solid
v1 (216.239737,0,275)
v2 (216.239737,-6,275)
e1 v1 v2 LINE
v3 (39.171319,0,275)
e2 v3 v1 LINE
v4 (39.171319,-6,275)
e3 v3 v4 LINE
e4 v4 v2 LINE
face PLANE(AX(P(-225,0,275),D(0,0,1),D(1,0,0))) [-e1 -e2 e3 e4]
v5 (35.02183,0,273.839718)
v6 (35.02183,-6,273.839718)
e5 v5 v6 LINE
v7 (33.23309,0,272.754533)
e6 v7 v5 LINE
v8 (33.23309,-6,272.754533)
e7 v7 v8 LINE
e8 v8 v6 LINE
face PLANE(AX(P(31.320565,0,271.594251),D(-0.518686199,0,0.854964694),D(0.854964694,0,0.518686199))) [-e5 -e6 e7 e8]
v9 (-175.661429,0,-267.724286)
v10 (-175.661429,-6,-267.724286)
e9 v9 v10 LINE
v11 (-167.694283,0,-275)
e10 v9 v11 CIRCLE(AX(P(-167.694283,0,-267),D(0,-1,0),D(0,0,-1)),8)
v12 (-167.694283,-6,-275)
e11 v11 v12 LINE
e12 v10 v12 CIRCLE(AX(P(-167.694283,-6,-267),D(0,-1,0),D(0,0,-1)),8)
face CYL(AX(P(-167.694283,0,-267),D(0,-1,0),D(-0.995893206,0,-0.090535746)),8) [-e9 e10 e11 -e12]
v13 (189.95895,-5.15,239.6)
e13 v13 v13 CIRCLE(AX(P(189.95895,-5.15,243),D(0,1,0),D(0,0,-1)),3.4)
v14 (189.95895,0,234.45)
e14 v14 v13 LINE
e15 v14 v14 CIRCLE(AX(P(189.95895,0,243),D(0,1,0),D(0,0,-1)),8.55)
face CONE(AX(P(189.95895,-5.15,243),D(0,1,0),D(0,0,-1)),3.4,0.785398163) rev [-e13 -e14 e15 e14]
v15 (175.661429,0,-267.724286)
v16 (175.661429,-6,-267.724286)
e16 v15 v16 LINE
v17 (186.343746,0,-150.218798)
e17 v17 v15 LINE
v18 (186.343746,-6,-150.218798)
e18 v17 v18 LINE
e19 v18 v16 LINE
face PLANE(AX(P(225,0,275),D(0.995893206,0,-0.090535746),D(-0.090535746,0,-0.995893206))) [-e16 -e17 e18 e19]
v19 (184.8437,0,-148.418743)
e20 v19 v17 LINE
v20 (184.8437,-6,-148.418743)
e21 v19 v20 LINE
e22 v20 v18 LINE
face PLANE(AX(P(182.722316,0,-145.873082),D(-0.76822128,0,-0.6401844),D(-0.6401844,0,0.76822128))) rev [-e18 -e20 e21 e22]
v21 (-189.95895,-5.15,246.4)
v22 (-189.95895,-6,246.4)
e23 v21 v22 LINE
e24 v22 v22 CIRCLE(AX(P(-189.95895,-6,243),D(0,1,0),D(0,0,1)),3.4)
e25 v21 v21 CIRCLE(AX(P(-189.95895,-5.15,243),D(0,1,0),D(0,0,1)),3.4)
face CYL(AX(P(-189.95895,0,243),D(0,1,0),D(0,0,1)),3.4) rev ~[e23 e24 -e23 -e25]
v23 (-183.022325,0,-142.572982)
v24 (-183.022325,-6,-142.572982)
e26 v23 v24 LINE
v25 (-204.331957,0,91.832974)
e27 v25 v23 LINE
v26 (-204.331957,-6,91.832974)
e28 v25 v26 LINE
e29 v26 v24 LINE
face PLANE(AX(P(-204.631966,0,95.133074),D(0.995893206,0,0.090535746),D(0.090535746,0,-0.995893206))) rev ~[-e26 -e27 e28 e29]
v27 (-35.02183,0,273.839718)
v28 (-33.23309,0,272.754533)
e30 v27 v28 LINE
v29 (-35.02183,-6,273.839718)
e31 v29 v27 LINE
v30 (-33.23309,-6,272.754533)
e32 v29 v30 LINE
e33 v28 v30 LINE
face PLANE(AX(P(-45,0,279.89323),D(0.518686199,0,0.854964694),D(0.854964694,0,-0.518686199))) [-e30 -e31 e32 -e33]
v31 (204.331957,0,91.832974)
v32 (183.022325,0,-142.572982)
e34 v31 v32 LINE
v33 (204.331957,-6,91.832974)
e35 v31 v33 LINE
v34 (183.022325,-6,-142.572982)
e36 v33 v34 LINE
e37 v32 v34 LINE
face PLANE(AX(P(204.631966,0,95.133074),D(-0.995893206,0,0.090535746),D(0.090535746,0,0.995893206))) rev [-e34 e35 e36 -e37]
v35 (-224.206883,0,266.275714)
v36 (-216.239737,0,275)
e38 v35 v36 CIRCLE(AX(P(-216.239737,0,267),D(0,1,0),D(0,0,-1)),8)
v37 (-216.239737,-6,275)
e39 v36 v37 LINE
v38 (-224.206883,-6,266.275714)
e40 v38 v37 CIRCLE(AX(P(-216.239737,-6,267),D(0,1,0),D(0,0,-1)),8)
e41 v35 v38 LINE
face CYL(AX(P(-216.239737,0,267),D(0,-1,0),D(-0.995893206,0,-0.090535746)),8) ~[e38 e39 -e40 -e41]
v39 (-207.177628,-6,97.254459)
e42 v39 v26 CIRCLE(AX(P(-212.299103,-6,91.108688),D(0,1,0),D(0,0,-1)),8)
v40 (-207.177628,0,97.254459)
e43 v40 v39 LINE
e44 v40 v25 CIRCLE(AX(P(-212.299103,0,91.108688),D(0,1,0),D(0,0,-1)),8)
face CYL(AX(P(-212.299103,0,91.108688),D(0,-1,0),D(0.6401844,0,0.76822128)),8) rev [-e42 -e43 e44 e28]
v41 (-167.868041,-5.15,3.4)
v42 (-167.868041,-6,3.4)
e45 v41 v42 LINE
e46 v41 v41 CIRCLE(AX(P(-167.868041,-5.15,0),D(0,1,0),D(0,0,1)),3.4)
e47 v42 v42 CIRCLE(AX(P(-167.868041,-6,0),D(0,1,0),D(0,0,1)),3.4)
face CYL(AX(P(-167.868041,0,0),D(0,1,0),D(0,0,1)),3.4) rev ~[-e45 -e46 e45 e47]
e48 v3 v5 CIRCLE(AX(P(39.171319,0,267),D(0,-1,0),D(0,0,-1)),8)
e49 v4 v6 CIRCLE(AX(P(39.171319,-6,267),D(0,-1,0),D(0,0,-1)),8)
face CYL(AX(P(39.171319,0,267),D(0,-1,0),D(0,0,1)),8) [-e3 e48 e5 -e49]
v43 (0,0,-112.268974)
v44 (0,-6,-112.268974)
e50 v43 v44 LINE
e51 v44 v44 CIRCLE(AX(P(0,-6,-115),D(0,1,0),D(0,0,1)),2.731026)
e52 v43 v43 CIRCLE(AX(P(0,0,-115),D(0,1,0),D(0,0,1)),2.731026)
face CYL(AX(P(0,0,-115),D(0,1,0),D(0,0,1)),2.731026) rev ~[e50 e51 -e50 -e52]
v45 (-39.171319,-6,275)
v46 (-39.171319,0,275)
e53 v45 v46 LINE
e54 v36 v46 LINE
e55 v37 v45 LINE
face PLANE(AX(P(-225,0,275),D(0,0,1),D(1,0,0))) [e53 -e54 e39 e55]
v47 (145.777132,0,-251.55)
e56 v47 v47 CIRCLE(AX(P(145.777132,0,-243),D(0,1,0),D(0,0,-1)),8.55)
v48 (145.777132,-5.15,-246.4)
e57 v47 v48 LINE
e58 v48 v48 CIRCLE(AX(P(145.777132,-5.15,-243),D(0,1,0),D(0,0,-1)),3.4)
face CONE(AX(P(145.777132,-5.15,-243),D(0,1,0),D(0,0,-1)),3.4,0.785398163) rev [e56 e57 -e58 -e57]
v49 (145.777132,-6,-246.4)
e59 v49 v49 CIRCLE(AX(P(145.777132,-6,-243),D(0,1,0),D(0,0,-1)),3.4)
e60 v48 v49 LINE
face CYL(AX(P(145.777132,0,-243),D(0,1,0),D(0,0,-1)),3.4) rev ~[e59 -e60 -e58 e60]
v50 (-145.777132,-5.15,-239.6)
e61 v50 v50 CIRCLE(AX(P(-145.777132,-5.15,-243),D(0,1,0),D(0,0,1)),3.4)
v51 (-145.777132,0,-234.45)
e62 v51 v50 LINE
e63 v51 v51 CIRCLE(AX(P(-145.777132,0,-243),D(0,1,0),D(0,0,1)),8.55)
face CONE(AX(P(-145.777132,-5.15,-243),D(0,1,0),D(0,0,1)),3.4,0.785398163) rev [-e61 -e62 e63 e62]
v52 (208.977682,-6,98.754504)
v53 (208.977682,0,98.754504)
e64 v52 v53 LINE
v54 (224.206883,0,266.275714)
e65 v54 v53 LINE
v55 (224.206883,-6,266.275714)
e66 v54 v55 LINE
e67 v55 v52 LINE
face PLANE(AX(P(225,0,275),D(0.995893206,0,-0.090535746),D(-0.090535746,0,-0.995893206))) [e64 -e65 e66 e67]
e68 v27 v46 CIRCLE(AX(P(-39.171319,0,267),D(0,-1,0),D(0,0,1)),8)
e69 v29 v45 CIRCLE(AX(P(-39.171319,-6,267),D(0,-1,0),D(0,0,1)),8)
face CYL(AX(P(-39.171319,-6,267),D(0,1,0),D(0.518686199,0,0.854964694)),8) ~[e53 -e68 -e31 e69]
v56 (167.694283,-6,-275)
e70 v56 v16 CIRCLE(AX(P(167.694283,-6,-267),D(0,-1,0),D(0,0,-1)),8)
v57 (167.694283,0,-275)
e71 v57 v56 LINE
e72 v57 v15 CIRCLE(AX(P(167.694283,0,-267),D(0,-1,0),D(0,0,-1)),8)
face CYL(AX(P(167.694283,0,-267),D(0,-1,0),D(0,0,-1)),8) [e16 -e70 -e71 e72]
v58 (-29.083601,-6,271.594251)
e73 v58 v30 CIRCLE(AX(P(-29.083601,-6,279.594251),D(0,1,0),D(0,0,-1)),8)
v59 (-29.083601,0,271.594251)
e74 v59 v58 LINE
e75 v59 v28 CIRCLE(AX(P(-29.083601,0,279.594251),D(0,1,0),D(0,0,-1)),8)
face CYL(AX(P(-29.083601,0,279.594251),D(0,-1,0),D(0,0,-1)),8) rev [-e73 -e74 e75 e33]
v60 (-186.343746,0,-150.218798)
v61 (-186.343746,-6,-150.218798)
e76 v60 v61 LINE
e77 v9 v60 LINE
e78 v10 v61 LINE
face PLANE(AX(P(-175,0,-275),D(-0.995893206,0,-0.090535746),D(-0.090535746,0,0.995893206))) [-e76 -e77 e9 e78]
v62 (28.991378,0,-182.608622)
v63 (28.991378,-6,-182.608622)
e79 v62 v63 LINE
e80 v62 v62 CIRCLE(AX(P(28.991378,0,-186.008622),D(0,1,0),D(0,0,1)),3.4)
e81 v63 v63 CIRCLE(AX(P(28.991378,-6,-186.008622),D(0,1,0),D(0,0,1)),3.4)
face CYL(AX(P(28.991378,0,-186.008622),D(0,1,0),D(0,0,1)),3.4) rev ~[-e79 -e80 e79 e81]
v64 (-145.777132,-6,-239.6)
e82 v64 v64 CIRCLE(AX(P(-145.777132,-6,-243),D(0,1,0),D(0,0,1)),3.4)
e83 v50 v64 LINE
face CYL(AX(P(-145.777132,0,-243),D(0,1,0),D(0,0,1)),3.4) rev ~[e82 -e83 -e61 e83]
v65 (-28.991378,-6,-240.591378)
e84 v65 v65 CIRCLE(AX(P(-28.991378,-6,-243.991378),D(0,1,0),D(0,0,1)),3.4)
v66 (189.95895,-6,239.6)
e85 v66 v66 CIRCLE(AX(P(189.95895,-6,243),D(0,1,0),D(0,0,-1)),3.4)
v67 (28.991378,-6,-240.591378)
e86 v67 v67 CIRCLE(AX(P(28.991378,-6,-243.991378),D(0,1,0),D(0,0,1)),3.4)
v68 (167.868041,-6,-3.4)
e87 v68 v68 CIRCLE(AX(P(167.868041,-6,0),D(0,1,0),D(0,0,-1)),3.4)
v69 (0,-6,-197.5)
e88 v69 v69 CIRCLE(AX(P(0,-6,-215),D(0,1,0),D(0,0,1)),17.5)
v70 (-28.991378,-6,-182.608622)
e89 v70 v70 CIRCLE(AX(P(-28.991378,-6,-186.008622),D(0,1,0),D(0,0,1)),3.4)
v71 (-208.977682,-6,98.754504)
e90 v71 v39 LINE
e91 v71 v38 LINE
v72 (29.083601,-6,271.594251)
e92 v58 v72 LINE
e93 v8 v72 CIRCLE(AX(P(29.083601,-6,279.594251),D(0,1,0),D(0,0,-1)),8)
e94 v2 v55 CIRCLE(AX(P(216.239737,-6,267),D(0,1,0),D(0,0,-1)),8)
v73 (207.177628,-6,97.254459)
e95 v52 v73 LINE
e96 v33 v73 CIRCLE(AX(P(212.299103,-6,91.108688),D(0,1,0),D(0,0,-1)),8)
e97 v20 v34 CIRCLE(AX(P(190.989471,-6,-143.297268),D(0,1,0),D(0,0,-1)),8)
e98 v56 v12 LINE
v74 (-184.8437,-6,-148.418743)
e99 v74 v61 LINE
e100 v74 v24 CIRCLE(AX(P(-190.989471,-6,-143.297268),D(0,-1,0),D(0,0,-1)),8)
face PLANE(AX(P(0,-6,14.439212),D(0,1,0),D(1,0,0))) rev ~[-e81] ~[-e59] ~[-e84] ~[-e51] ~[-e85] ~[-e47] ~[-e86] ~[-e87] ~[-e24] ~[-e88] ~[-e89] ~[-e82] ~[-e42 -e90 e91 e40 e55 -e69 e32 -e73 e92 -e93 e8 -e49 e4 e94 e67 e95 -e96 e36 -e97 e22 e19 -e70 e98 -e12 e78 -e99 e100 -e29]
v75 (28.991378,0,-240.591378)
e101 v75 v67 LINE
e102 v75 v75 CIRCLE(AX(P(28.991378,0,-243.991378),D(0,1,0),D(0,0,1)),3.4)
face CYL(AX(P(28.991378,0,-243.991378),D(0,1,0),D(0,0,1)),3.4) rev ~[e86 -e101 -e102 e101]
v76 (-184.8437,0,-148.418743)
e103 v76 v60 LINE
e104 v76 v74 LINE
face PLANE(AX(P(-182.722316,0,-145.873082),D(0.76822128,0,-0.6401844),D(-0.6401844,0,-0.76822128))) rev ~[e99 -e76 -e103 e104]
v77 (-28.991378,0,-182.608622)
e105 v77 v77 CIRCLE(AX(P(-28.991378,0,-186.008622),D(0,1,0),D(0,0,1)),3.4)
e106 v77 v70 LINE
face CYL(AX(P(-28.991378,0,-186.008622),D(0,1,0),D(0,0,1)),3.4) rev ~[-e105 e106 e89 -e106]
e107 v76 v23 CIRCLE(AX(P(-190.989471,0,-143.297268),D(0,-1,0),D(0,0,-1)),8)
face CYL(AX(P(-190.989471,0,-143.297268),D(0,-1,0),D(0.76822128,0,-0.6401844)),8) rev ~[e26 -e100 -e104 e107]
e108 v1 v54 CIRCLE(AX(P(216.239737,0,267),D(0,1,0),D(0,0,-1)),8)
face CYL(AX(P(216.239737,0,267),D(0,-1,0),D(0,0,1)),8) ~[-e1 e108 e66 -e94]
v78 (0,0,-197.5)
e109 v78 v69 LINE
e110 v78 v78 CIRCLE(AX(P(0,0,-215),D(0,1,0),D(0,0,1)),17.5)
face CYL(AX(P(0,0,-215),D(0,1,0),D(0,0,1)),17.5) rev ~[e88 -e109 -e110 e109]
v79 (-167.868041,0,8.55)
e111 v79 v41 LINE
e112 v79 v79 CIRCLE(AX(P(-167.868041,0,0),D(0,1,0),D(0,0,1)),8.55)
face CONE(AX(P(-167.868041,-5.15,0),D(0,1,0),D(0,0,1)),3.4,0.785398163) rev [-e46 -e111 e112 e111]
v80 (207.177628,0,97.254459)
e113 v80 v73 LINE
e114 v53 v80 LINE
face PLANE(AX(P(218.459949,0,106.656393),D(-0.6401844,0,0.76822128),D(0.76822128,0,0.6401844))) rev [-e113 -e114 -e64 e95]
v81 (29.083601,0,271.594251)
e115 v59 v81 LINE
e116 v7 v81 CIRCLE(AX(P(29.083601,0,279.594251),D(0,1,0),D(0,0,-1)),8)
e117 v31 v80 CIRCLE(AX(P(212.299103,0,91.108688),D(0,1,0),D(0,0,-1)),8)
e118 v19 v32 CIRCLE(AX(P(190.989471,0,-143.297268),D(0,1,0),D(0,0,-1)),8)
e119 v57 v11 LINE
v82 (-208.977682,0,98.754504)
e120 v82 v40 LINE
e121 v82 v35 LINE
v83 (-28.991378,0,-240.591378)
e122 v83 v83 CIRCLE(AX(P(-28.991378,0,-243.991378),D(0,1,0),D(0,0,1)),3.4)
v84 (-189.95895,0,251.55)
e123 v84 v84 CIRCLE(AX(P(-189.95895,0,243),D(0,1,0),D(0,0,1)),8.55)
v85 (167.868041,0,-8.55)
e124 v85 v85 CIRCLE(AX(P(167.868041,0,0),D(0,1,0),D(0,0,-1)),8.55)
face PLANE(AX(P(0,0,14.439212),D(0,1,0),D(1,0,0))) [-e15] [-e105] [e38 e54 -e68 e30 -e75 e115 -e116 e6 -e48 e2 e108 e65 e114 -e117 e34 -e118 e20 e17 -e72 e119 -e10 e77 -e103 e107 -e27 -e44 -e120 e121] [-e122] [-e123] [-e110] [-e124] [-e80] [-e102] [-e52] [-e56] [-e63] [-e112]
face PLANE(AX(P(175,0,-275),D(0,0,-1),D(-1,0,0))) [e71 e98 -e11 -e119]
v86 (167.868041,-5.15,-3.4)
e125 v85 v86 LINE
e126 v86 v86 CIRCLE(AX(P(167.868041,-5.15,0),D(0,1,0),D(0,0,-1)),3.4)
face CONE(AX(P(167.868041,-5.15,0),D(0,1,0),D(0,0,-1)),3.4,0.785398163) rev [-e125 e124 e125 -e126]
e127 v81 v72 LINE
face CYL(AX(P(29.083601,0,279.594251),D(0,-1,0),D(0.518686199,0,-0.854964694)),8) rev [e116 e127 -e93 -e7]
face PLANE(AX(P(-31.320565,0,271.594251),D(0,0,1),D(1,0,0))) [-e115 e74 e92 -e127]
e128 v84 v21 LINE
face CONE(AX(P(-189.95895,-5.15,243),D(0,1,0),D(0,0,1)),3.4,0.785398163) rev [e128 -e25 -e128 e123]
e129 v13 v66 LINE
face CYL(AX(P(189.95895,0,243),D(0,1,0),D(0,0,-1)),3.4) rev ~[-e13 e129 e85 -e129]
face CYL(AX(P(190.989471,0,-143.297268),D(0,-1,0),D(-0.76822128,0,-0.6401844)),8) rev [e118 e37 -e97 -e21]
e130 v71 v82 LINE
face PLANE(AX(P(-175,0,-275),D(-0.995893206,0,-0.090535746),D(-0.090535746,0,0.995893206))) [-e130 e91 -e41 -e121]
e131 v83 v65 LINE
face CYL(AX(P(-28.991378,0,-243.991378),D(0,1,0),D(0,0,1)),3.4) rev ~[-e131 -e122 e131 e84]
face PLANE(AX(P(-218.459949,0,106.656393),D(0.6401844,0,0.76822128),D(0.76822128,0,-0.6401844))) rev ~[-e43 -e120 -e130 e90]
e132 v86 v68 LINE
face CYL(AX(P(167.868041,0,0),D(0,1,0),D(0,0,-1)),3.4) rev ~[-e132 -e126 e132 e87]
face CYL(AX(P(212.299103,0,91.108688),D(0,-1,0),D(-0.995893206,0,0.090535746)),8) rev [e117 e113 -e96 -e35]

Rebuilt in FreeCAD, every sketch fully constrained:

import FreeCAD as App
import Part
import Sketcher


def edges_at(feature, points):
    """Names of the edges that pass closest to the given points."""
    edges = feature.Shape.Edges
    near = lambda p: min(range(len(edges)), key=lambda i: edges[i].distToShape(Part.Vertex(*p))[0])
    return sorted({f"Edge{near(p) + 1}" for p in points})


def add_polygon(sketch, points):
    """Adds a closed chain of lines whose ends are joined by coincident constraints."""
    first, n = sketch.GeometryCount, len(points)
    for a, b in zip(points, points[1:] + points[:1]):
        sketch.addGeometry(Part.LineSegment(App.Vector(*a, 0), App.Vector(*b, 0)), False)
    for i in range(n):
        sketch.addConstraint(Sketcher.Constraint("Coincident", first + i, 2, first + (i + 1) % n, 1))

doc = App.newDocument("Part")
params = doc.addObject("Spreadsheet::Sheet", "Params")
for row, (alias, value) in enumerate([
    ("sketch1_diameter", "35 mm"),
    ("sketch1_diameter2", "6.8 mm"),
    ("sketch1_width", "450 mm"),
    ("sketch1_width2", "350 mm"),
    ("pad1_length", "6 mm"),
    ("fillet_radius", "8 mm"),
    ("sketch2_diameter", "6.8 mm"),
    ("pocket1_length", "20 mm"),
    ("sketch3_length", "242 mm"),
    ("sketch3_length2", "18 mm"),
    ("pocket2_length", "10 mm"),
    ("sketch4_width", "90 mm"),
    ("sketch4_length", "16 mm"),
    ("pocket3_length", "10 mm"),
    ("fillet2_radius", "8 mm"),
    ("chamfer_size", "5.15 mm"),
], start=1):
    params.set(f"A{row}", alias)
    params.set(f"B{row}", "=" + value)
    params.setAlias(f"B{row}", alias)

body = doc.addObject("PartDesign::Body", "Body")

sketch1 = doc.addObject("Sketcher::SketchObject", "Sketch")
body.addObject(sketch1)
sketch1.AttachmentSupport = (doc.XZ_Plane, [""])
sketch1.MapMode = "FlatFace"
add_polygon(sketch1, [(-175, -275), (-225, 275), (225, 275), (175, -275)])
sketch1.addGeometry(Part.Circle(App.Vector(-189.95895, 243, 0), App.Vector(0, 0, 1), 3.4), False)
sketch1.addGeometry(Part.Circle(App.Vector(189.95895, 243, 0), App.Vector(0, 0, 1), 3.4), False)
sketch1.addGeometry(Part.Circle(App.Vector(-167.868041, 0, 0), App.Vector(0, 0, 1), 3.4), False)
sketch1.addGeometry(Part.Circle(App.Vector(-145.777132, -243, 0), App.Vector(0, 0, 1), 3.4), False)
sketch1.addGeometry(Part.Circle(App.Vector(0, -115, 0), App.Vector(0, 0, 1), 2.731026), False)
sketch1.addGeometry(Part.Circle(App.Vector(167.868041, 0, 0), App.Vector(0, 0, 1), 3.4), False)
sketch1.addGeometry(Part.Circle(App.Vector(0, -215, 0), App.Vector(0, 0, 1), 17.5), False)
sketch1.addGeometry(Part.Circle(App.Vector(145.777132, -243, 0), App.Vector(0, 0, 1), 3.4), False)
sketch1.addConstraint(Sketcher.Constraint("Horizontal", 1))
sketch1.addConstraint(Sketcher.Constraint("Horizontal", 3))
sketch1.addConstraint(Sketcher.Constraint("Equal", 4, 5))
sketch1.addConstraint(Sketcher.Constraint("Equal", 5, 6))
sketch1.addConstraint(Sketcher.Constraint("Equal", 6, 7))
sketch1.addConstraint(Sketcher.Constraint("Equal", 7, 9))
sketch1.addConstraint(Sketcher.Constraint("Equal", 9, 11))
sketch1.addConstraint(Sketcher.Constraint("Symmetric", 6, 3, 9, 3, -1, 1))
sketch1.addConstraint(Sketcher.Constraint("Symmetric", 4, 3, 5, 3, -2))
sketch1.addConstraint(Sketcher.Constraint("Symmetric", 7, 3, 11, 3, -2))
sketch1.addConstraint(Sketcher.Constraint("PointOnObject", 6, 3, -1))
sketch1.addConstraint(Sketcher.Constraint("PointOnObject", 8, 3, -2))
sketch1.addConstraint(Sketcher.Constraint("PointOnObject", 10, 3, -2))
sketch1.addConstraint(Sketcher.Constraint("Equal", 0, 2))
sketch1.addConstraint(Sketcher.Constraint("Diameter", 10, 35.0))
sketch1.addConstraint(Sketcher.Constraint("Diameter", 4, 6.8))
sketch1.addConstraint(Sketcher.Constraint("DistanceX", 1, 1, 1, 2, 450.0))
sketch1.addConstraint(Sketcher.Constraint("DistanceX", 3, 2, 3, 1, 350.0))
sketch1.addConstraint(Sketcher.Constraint("DistanceY", -1, 1, 4, 3, 243.0))
sketch1.addConstraint(Sketcher.Constraint("DistanceY", 7, 3, -1, 1, 243.0))
sketch1.addConstraint(Sketcher.Constraint("DistanceY", 8, 3, -1, 1, 115.0))
sketch1.addConstraint(Sketcher.Constraint("DistanceY", 10, 3, -1, 1, 215.0))
sketch1.addConstraint(Sketcher.Constraint("DistanceX", 0, 2, -1, 1, 225.0))
sketch1.addConstraint(Sketcher.Constraint("DistanceY", -1, 1, 0, 2, 275.0))
sketch1.addConstraint(Sketcher.Constraint("DistanceY", 2, 2, -1, 1, 275.0))
sketch1.addConstraint(Sketcher.Constraint("Diameter", 8, 5.462053))
sketch1.addConstraint(Sketcher.Constraint("DistanceX", 4, 3, 5, 3, 379.9179))
sketch1.addConstraint(Sketcher.Constraint("DistanceX", 6, 3, -1, 1, 167.868041))
sketch1.addConstraint(Sketcher.Constraint("DistanceX", 7, 3, -1, 1, 145.777132))
sketch1.setExpression("Constraints[18]", "Params.sketch1_diameter")
sketch1.setExpression("Constraints[19]", "Params.sketch1_diameter2")
sketch1.setExpression("Constraints[20]", "Params.sketch1_width")
sketch1.setExpression("Constraints[21]", "Params.sketch1_width2")
pad1 = doc.addObject("PartDesign::Pad", "Pad")
body.addObject(pad1)
pad1.Profile = sketch1
pad1.setExpression("Length", "Params.pad1_length")
doc.recompute()

fillet = doc.addObject("PartDesign::Fillet", "Fillet")
body.addObject(fillet)
fillet.Base = (pad1, edges_at(pad1, [
    (175, -3, -275),
    (225, -3, 275),
    (-225, -3, 275),
    (-175, -3, -275),
]))
fillet.setExpression("Radius", "Params.fillet_radius")

sketch2 = doc.addObject("Sketcher::SketchObject", "Sketch001")
body.addObject(sketch2)
sketch2.AttachmentSupport = (doc.XZ_Plane, [""])
sketch2.MapMode = "FlatFace"
sketch2.addGeometry(Part.Circle(App.Vector(28.991378, -186.008622, 0), App.Vector(0, 0, 1), 3.4), False)
sketch2.addGeometry(Part.Circle(App.Vector(-28.991378, -186.008622, 0), App.Vector(0, 0, 1), 3.4), False)
sketch2.addGeometry(Part.Circle(App.Vector(-28.991378, -243.991378, 0), App.Vector(0, 0, 1), 3.4), False)
sketch2.addGeometry(Part.Circle(App.Vector(28.991378, -243.991378, 0), App.Vector(0, 0, 1), 3.4), False)
sketch2.addConstraint(Sketcher.Constraint("Equal", 0, 1))
sketch2.addConstraint(Sketcher.Constraint("Equal", 1, 2))
sketch2.addConstraint(Sketcher.Constraint("Equal", 2, 3))
sketch2.addConstraint(Sketcher.Constraint("Symmetric", 0, 3, 1, 3, -2))
sketch2.addConstraint(Sketcher.Constraint("Symmetric", 2, 3, 3, 3, -2))
sketch2.addConstraint(Sketcher.Constraint("Vertical", 1, 3, 2, 3))
sketch2.addConstraint(Sketcher.Constraint("Diameter", 0, 6.8))
sketch2.addConstraint(Sketcher.Constraint("DistanceX", -1, 1, 0, 3, 28.991378))
sketch2.addConstraint(Sketcher.Constraint("DistanceY", 0, 3, -1, 1, 186.008622))
sketch2.addConstraint(Sketcher.Constraint("DistanceY", 2, 3, -1, 1, 243.991378))
sketch2.setExpression("Constraints[6]", "Params.sketch2_diameter")
pocket1 = doc.addObject("PartDesign::Pocket", "Pocket")
body.addObject(pocket1)
pocket1.Profile = sketch2
pocket1.setExpression("Length", "Params.pocket1_length")
pocket1.Reversed = True

sketch3 = doc.addObject("Sketcher::SketchObject", "Sketch002")
body.addObject(sketch3)
sketch3.AttachmentSupport = (doc.XZ_Plane, [""])
sketch3.MapMode = "FlatFace"
add_polygon(sketch3, [(-204.631966, 95.133074), (-182.722316, -145.873082), (-194.245635, -159.701065), (-218.459949, 106.656393)])
sketch3.addConstraint(Sketcher.Constraint("Parallel", 0, 2))
sketch3.addConstraint(Sketcher.Constraint("Perpendicular", 1, 3))
sketch3.addConstraint(Sketcher.Constraint("Equal", 1, 3))
sketch3.addConstraint(Sketcher.Constraint("Distance", 0, 242.0))
sketch3.addConstraint(Sketcher.Constraint("Distance", 1, 18.0))
sketch3.addConstraint(Sketcher.Constraint("DistanceY", 0, 2, -1, 1, 145.873082))
sketch3.addConstraint(Sketcher.Constraint("DistanceX", 2, 2, -1, 1, 218.459949))
sketch3.addConstraint(Sketcher.Constraint("DistanceX", 1, 2, 0, 2, 11.523319))
sketch3.setExpression("Constraints[7]", "Params.sketch3_length")
sketch3.setExpression("Constraints[8]", "Params.sketch3_length2")
pocket2 = doc.addObject("PartDesign::Pocket", "Pocket001")
body.addObject(pocket2)
pocket2.Profile = sketch3
pocket2.setExpression("Length", "Params.pocket2_length")
pocket2.Reversed = True

sketch4 = doc.addObject("Sketcher::SketchObject", "Sketch003")
body.addObject(sketch4)
sketch4.AttachmentSupport = (doc.XZ_Plane, [""])
sketch4.MapMode = "FlatFace"
add_polygon(sketch4, [(31.320565, 271.594251), (-31.320565, 271.594251), (-45, 279.89323), (45, 279.89323)])
sketch4.addConstraint(Sketcher.Constraint("Horizontal", 0))
sketch4.addConstraint(Sketcher.Constraint("Horizontal", 2))
sketch4.addConstraint(Sketcher.Constraint("Equal", 1, 3))
sketch4.addConstraint(Sketcher.Constraint("DistanceX", 2, 1, 2, 2, 90.0))
sketch4.addConstraint(Sketcher.Constraint("Distance", 1, 16.0))
sketch4.addConstraint(Sketcher.Constraint("DistanceX", 1, 2, -1, 1, 45.0))
sketch4.addConstraint(Sketcher.Constraint("DistanceX", 0, 2, 0, 1, 62.64113))
sketch4.addConstraint(Sketcher.Constraint("DistanceY", -1, 1, 0, 2, 271.594251))
sketch4.setExpression("Constraints[7]", "Params.sketch4_width")
sketch4.setExpression("Constraints[8]", "Params.sketch4_length")
pocket3 = doc.addObject("PartDesign::Pocket", "Pocket002")
body.addObject(pocket3)
pocket3.Profile = sketch4
pocket3.setExpression("Length", "Params.pocket3_length")
pocket3.Reversed = True
doc.recompute()

mirrored = doc.addObject("PartDesign::Mirrored", "Mirrored")
body.addObject(mirrored)
mirrored.Originals = [pocket2]
mirrored.MirrorPlane = (doc.YZ_Plane, [""])
body.Tip = mirrored
doc.recompute()

fillet2 = doc.addObject("PartDesign::Fillet", "Fillet001")
body.addObject(fillet2)
fillet2.Base = (mirrored, edges_at(mirrored, [
    (-182.722, -3, -145.873),
    (-204.632, -3, 95.133),
    (36.934, -3, 275),
    (-36.934, -3, 275),
    (-31.321, -3, 271.594),
    (31.321, -3, 271.594),
    (204.632, -3, 95.133),
    (182.722, -3, -145.873),
]))
fillet2.setExpression("Radius", "Params.fillet2_radius")
doc.recompute()

chamfer = doc.addObject("PartDesign::Chamfer", "Chamfer")
body.addObject(chamfer)
chamfer.Base = (fillet2, edges_at(fillet2, [
    (-145.777, 0, -246.4),
    (145.777, 0, -239.6),
    (-189.959, 0, 239.6),
    (189.959, 0, 246.4),
    (-167.868, 0, -3.4),
    (167.868, 0, 3.4),
]))
chamfer.setExpression("Size", "Params.chamfer_size")

doc.recompute()
